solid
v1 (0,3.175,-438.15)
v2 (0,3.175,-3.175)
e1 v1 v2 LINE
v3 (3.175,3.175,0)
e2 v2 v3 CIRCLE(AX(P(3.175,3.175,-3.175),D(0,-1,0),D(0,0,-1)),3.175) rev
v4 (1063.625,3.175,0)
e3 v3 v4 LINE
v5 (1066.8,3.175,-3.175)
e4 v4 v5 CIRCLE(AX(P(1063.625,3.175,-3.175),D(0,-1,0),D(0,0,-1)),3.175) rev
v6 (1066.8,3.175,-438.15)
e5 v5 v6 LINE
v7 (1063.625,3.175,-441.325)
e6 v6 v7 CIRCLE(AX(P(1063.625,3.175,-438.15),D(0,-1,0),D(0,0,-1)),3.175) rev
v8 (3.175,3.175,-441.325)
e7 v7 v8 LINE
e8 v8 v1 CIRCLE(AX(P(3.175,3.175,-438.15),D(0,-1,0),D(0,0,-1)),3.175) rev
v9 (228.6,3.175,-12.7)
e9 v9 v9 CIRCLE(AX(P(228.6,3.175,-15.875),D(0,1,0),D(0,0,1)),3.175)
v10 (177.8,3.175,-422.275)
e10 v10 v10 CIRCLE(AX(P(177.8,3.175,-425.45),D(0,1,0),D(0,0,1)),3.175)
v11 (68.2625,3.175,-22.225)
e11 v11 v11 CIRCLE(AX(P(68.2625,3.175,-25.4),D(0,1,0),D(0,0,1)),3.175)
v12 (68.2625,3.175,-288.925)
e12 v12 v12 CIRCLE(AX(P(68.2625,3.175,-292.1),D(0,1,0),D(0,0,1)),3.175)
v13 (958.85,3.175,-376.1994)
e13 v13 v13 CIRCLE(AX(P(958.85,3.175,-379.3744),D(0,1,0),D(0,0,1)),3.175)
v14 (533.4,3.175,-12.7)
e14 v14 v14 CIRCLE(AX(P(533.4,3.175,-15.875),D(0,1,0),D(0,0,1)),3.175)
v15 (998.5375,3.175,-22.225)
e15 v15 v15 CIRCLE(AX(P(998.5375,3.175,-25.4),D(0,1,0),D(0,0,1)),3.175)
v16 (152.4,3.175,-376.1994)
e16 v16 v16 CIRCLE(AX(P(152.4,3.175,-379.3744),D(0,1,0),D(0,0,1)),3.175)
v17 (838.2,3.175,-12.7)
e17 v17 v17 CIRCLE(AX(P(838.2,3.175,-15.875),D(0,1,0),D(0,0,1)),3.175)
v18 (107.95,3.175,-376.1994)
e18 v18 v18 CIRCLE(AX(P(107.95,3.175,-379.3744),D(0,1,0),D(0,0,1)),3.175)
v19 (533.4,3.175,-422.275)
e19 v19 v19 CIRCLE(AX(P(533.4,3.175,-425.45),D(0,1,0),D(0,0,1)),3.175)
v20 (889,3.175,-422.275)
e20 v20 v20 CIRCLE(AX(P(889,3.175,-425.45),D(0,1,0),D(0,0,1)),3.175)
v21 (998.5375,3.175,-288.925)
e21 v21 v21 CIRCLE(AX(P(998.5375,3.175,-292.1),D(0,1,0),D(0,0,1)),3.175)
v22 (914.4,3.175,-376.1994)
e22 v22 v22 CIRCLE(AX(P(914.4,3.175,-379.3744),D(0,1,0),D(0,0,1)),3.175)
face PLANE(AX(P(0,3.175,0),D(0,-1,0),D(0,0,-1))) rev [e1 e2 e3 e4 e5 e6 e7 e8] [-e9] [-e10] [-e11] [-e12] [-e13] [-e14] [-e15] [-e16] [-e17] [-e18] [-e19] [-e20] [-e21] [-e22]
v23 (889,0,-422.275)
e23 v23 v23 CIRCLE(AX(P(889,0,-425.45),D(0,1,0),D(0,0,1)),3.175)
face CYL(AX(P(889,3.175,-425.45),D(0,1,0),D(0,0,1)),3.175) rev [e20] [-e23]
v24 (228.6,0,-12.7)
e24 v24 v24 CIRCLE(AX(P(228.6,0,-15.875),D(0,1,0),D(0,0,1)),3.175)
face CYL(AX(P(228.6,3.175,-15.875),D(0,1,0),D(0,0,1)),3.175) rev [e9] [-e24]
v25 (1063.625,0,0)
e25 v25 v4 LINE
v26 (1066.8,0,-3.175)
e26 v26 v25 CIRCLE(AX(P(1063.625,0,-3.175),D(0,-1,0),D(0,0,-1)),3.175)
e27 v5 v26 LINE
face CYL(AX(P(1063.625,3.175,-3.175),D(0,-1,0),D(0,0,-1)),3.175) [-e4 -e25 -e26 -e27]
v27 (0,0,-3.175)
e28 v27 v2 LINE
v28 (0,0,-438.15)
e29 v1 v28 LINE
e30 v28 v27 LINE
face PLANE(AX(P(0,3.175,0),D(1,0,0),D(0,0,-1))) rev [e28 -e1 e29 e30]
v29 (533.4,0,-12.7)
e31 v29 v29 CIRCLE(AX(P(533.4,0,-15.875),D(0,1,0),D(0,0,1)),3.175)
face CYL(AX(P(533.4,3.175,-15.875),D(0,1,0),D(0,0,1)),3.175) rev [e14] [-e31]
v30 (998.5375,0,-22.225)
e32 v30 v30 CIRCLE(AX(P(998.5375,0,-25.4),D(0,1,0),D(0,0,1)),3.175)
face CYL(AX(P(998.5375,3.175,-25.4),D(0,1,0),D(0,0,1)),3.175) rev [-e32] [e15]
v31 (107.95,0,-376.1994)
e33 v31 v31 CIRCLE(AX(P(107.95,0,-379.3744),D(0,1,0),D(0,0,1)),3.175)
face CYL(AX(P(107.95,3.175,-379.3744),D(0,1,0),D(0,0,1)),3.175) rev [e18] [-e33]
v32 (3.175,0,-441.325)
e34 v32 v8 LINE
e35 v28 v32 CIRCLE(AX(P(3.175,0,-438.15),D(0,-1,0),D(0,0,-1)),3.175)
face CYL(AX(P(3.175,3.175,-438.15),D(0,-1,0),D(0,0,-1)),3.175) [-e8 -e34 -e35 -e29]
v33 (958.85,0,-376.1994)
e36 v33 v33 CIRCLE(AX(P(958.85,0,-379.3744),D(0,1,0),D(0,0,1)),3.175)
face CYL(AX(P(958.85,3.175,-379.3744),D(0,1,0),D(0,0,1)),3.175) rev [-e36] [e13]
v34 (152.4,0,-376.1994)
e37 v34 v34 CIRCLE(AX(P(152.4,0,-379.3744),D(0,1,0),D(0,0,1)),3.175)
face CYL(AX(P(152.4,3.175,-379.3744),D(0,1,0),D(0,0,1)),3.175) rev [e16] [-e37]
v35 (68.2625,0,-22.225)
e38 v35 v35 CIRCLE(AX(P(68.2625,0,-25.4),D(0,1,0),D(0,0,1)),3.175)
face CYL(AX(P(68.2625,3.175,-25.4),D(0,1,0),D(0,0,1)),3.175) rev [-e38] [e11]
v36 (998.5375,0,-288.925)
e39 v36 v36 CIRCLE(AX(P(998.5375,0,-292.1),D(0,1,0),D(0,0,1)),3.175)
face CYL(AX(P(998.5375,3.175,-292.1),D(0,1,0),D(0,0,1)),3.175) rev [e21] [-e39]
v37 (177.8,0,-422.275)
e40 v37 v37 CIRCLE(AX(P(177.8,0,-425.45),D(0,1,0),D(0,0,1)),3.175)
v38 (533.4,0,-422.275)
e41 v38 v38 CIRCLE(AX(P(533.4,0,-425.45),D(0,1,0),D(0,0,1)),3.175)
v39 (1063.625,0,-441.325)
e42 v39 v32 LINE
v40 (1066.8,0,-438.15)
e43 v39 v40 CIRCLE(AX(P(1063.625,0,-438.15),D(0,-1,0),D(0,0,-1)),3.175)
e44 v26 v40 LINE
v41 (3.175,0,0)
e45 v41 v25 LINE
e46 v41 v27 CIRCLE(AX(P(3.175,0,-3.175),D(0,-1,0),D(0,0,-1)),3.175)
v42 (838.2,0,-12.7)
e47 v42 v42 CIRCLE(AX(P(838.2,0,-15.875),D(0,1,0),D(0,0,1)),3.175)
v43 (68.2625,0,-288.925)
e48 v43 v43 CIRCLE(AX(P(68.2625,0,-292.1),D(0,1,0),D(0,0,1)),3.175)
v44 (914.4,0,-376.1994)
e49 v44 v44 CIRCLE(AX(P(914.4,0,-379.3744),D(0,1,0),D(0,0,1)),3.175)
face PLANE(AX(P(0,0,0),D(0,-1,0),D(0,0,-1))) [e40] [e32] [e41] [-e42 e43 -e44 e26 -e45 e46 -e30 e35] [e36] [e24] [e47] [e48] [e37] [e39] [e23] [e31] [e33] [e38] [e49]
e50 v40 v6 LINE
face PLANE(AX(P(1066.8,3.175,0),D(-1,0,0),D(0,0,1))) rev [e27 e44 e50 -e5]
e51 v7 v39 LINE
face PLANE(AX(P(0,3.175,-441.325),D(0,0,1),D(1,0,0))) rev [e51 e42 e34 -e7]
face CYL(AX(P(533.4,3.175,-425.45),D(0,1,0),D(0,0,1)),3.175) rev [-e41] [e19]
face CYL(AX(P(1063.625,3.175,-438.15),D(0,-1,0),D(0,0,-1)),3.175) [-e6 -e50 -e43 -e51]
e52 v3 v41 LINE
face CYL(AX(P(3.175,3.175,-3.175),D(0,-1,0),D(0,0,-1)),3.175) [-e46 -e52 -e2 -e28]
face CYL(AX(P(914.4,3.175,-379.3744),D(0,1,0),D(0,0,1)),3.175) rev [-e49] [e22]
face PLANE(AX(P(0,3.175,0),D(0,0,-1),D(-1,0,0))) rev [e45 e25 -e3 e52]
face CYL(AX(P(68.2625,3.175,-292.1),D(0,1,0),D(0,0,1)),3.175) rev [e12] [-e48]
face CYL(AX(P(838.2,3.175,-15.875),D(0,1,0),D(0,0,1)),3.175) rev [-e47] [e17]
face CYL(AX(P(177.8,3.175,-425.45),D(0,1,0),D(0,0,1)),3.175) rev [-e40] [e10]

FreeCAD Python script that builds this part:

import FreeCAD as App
import Part
import Sketcher
from FreeCAD import Vector
Q = App.Units.Quantity


def edges_at(feature, points):
    """Names of the edges that pass closest to the given points."""
    edges = feature.Shape.Edges
    near = lambda p: min(range(len(edges)), key=lambda i: edges[i].distToShape(Part.Vertex(*p))[0])
    return sorted({f"Edge{near(p) + 1}" for p in points})


def add_polygon(sketch, points):
    """Adds a closed chain of lines whose ends are joined by coincident constraints."""
    first, n = sketch.GeometryCount, len(points)
    for a, b in zip(points, points[1:] + points[:1]):
        sketch.addGeometry(Part.LineSegment(App.Vector(*a, 0), App.Vector(*b, 0)), False)
    for i in range(n):
        sketch.addConstraint(Sketcher.Constraint("Coincident", first + i, 2, first + (i + 1) % n, 1))

doc = App.newDocument("Part")
body = doc.addObject("PartDesign::Body", "Body")

sketch1 = doc.addObject("Sketcher::SketchObject", "Sketch")
body.addObject(sketch1)
sketch1.AttachmentSupport = (doc.XZ_Plane, [""])
sketch1.MapMode = "FlatFace"
add_polygon(sketch1, [(0, -441), (0, 0), (1067, 0), (1067, -441)])
sketch1.addConstraint(Sketcher.Constraint("Vertical", 0))
sketch1.addConstraint(Sketcher.Constraint("Horizontal", 1))
sketch1.addConstraint(Sketcher.Constraint("Vertical", 2))
sketch1.addConstraint(Sketcher.Constraint("Horizontal", 3))
sketch1.addConstraint(Sketcher.Constraint("Coincident", 0, 2, -1, 1))
sketch1.addConstraint(Sketcher.Constraint("DistanceX", 1, 1, 1, 2, Q("42 in")))
sketch1.addConstraint(Sketcher.Constraint("DistanceY", 0, 1, 0, 2, Q("17.375 in")))
pad1 = doc.addObject("PartDesign::Pad", "Pad")
body.addObject(pad1)
pad1.Profile = sketch1
pad1.Length = Q("0.125 in")
pad1.Reversed = True

sketch2 = doc.addObject("Sketcher::SketchObject", "Sketch001")
body.addObject(sketch2)
sketch2.AttachmentSupport = (doc.XZ_Plane, [""])
sketch2.MapMode = "FlatFace"
sketch2.AttachmentOffset = App.Placement(Vector(0, 0, -0.125 * 25.4), App.Rotation())
sketch2.addGeometry(Part.Circle(Vector(228.6, -15.9, 0), Vector(0, 0, 1), 3.2), False)
sketch2.addGeometry(Part.Circle(Vector(533.4, -15.9, 0), Vector(0, 0, 1), 3.2), False)
sketch2.addGeometry(Part.Circle(Vector(838.2, -15.9, 0), Vector(0, 0, 1), 3.2), False)
sketch2.addGeometry(Part.Circle(Vector(889, -425.4, 0), Vector(0, 0, 1), 3.2), False)
sketch2.addGeometry(Part.Circle(Vector(533.4, -425.4, 0), Vector(0, 0, 1), 3.2), False)
sketch2.addGeometry(Part.Circle(Vector(177.8, -425.4, 0), Vector(0, 0, 1), 3.2), False)
sketch2.addGeometry(Part.Circle(Vector(68.3, -25.4, 0), Vector(0, 0, 1), 3.2), False)
sketch2.addGeometry(Part.Circle(Vector(68.3, -292.1, 0), Vector(0, 0, 1), 3.2), False)
sketch2.addGeometry(Part.Circle(Vector(998.5, -25.4, 0), Vector(0, 0, 1), 3.2), False)
sketch2.addGeometry(Part.Circle(Vector(998.5, -292.1, 0), Vector(0, 0, 1), 3.2), False)
sketch2.addGeometry(Part.Circle(Vector(958.9, -379.4, 0), Vector(0, 0, 1), 3.2), False)
sketch2.addGeometry(Part.Circle(Vector(914.4, -379.4, 0), Vector(0, 0, 1), 3.2), False)
sketch2.addGeometry(Part.Circle(Vector(108, -379.4, 0), Vector(0, 0, 1), 3.2), False)
sketch2.addGeometry(Part.Circle(Vector(152.4, -379.4, 0), Vector(0, 0, 1), 3.2), False)
sketch2.addConstraint(Sketcher.Constraint("Equal", 0, 1))
sketch2.addConstraint(Sketcher.Constraint("Equal", 1, 2))
sketch2.addConstraint(Sketcher.Constraint("Equal", 2, 3))
sketch2.addConstraint(Sketcher.Constraint("Equal", 3, 4))
sketch2.addConstraint(Sketcher.Constraint("Equal", 4, 5))
sketch2.addConstraint(Sketcher.Constraint("Equal", 5, 6))
sketch2.addConstraint(Sketcher.Constraint("Equal", 6, 7))
sketch2.addConstraint(Sketcher.Constraint("Equal", 7, 8))
sketch2.addConstraint(Sketcher.Constraint("Equal", 8, 9))
sketch2.addConstraint(Sketcher.Constraint("Equal", 9, 10))
sketch2.addConstraint(Sketcher.Constraint("Equal", 10, 11))
sketch2.addConstraint(Sketcher.Constraint("Equal", 11, 12))
sketch2.addConstraint(Sketcher.Constraint("Equal", 12, 13))
sketch2.addConstraint(Sketcher.Constraint("Horizontal", 0, 3, 1, 3))
sketch2.addConstraint(Sketcher.Constraint("Horizontal", 1, 3, 2, 3))
sketch2.addConstraint(Sketcher.Constraint("Horizontal", 3, 3, 4, 3))
sketch2.addConstraint(Sketcher.Constraint("Horizontal", 4, 3, 5, 3))
sketch2.addConstraint(Sketcher.Constraint("Horizontal", 6, 3, 8, 3))
sketch2.addConstraint(Sketcher.Constraint("Horizontal", 7, 3, 9, 3))
sketch2.addConstraint(Sketcher.Constraint("Horizontal", 10, 3, 11, 3))
sketch2.addConstraint(Sketcher.Constraint("Horizontal", 11, 3, 12, 3))
sketch2.addConstraint(Sketcher.Constraint("Horizontal", 12, 3, 13, 3))
sketch2.addConstraint(Sketcher.Constraint("Vertical", 1, 3, 4, 3))
sketch2.addConstraint(Sketcher.Constraint("Vertical", 6, 3, 7, 3))
sketch2.addConstraint(Sketcher.Constraint("Vertical", 8, 3, 9, 3))
sketch2.addConstraint(Sketcher.Constraint("Diameter", 0, Q("0.25 in")))
sketch2.addConstraint(Sketcher.Constraint("DistanceX", -1, 1, 0, 3, Q("9 in")))
sketch2.addConstraint(Sketcher.Constraint("DistanceX", -1, 1, 1, 3, Q("21 in")))
sketch2.addConstraint(Sketcher.Constraint("DistanceX", -1, 1, 2, 3, Q("33 in")))
sketch2.addConstraint(Sketcher.Constraint("DistanceX", -1, 1, 3, 3, Q("35 in")))
sketch2.addConstraint(Sketcher.Constraint("DistanceX", -1, 1, 5, 3, Q("7 in")))
sketch2.addConstraint(Sketcher.Constraint("DistanceY", 6, 3, -1, 1, Q("1 in")))
sketch2.addConstraint(Sketcher.Constraint("DistanceX", -1, 1, 11, 3, Q("36 in")))
sketch2.addConstraint(Sketcher.Constraint("DistanceX", -1, 1, 13, 3, Q("6 in")))
sketch2.addConstraint(Sketcher.Constraint("DistanceY", 7, 3, -1, 1, Q("11.5 in")))
sketch2.addConstraint(Sketcher.Constraint("DistanceY", 3, 3, -1, 1, Q("16.75 in")))
sketch2.addConstraint(Sketcher.Constraint("DistanceX", -1, 1, 10, 3, Q("37.75 in")))
sketch2.addConstraint(Sketcher.Constraint("DistanceX", -1, 1, 12, 3, Q("4.25 in")))
sketch2.addConstraint(Sketcher.Constraint("DistanceY", 0, 3, -1, 1, Q("0.625 in")))
sketch2.addConstraint(Sketcher.Constraint("DistanceX", -1, 1, 6, 3, Q("2.6875 in")))
sketch2.addConstraint(Sketcher.Constraint("DistanceX", -1, 1, 8, 3, Q("39.3125 in")))
sketch2.addConstraint(Sketcher.Constraint("DistanceY", 10, 3, -1, 1, Q("14.936 in")))
doc.recompute()
hole = doc.addObject("PartDesign::Hole", "Hole")
body.addObject(hole)
hole.Profile = sketch2
hole.ThreadType = "None"
hole.Diameter = Q("0.25 in")
hole.DepthType = "ThroughAll"
hole.Reversed = True
doc.recompute()

fillet = doc.addObject("PartDesign::Fillet", "Fillet")
body.addObject(fillet)
fillet.Base = (hole, edges_at(hole, [
    (0, 1.587, -441.325),
    (1066.8, 1.587, -441.325),
    (1066.8, 1.587, 0),
    (0, 1.587, 0),
]))
fillet.Radius = Q("0.125 in")

doc.recompute()
